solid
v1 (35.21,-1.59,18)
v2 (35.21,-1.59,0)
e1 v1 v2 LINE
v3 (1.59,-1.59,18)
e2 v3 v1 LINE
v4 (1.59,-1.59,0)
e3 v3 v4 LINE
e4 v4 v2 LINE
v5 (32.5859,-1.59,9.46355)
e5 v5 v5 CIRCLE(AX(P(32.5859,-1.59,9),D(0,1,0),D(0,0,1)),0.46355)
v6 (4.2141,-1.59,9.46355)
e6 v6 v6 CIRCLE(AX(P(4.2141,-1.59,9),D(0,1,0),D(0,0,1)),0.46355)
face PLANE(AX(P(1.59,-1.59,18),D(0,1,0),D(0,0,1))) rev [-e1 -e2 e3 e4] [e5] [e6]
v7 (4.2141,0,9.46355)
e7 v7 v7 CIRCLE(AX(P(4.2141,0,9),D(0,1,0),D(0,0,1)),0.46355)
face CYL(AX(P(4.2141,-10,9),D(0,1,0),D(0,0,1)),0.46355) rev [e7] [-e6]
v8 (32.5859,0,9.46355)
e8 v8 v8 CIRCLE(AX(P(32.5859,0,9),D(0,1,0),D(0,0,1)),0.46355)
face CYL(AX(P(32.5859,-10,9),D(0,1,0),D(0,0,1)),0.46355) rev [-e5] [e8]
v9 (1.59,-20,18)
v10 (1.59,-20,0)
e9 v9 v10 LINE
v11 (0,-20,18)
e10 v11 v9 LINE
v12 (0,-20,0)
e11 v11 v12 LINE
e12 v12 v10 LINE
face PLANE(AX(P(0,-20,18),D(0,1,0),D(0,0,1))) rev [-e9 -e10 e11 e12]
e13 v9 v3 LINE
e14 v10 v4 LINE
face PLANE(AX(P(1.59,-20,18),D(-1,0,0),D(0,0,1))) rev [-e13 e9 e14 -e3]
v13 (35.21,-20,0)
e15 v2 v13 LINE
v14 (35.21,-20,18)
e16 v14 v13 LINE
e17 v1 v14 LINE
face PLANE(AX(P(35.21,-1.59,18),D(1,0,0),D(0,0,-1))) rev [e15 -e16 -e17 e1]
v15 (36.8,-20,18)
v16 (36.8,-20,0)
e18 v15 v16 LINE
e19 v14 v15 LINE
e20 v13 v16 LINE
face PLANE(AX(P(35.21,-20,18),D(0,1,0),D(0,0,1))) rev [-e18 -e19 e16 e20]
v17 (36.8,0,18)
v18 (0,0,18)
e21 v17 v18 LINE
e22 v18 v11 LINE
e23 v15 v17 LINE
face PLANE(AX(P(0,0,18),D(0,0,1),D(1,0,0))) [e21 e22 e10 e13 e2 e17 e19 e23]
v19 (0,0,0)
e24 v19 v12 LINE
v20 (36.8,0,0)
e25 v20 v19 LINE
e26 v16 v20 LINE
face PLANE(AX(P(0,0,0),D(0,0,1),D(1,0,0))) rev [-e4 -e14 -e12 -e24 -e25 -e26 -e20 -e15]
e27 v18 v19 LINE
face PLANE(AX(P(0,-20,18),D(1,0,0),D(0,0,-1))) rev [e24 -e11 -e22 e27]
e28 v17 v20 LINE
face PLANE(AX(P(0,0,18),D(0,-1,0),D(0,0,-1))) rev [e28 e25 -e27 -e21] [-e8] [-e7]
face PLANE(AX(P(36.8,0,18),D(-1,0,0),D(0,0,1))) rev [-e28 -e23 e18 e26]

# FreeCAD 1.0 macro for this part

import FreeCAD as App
import Part
import Sketcher
Q = App.Units.Quantity


def add_polygon(sketch, points):
    """Adds a closed chain of lines whose ends are joined by coincident constraints."""
    first, n = sketch.GeometryCount, len(points)
    for a, b in zip(points, points[1:] + points[:1]):
        sketch.addGeometry(Part.LineSegment(App.Vector(*a, 0), App.Vector(*b, 0)), False)
    for i in range(n):
        sketch.addConstraint(Sketcher.Constraint("Coincident", first + i, 2, first + (i + 1) % n, 1))

doc = App.newDocument("Part")
body = doc.addObject("PartDesign::Body", "Body")

sketch1 = body.newObject("Sketcher::SketchObject", "Sketch")
sketch1.AttachmentSupport = (doc.getObject("XY_Plane"), [""])
sketch1.MapMode = "FlatFace"
add_polygon(sketch1, [(1.6, -20), (1.6, -1.6), (35.2, -1.6), (35.2, -20), (36.8, -20), (36.8, 0), (0, 0), (0, -20)])
sketch1.addConstraint(Sketcher.Constraint("Vertical", 0))
sketch1.addConstraint(Sketcher.Constraint("Horizontal", 1))
sketch1.addConstraint(Sketcher.Constraint("Vertical", 2))
sketch1.addConstraint(Sketcher.Constraint("Horizontal", 3))
sketch1.addConstraint(Sketcher.Constraint("Vertical", 4))
sketch1.addConstraint(Sketcher.Constraint("Horizontal", 5))
sketch1.addConstraint(Sketcher.Constraint("Vertical", 6))
sketch1.addConstraint(Sketcher.Constraint("Horizontal", 7))
sketch1.addConstraint(Sketcher.Constraint("Coincident", 5, 2, -1, 1))
sketch1.addConstraint(Sketcher.Constraint("Horizontal", 3, 2, 6, 2))
sketch1.addConstraint(Sketcher.Constraint("Equal", 3, 7))
sketch1.addConstraint(Sketcher.Constraint("DistanceY", 4, 1, 4, 2, Q("20 mm")))
sketch1.addConstraint(Sketcher.Constraint("DistanceX", 5, 2, 5, 1, Q("36.8 mm")))
sketch1.addConstraint(Sketcher.Constraint("DistanceX", 1, 1, 1, 2, Q("33.62 mm")))
sketch1.addConstraint(Sketcher.Constraint("DistanceY", 0, 1, 0, 2, Q("18.41 mm")))
pad1 = body.newObject("PartDesign::Pad", "Pad")
pad1.Profile = sketch1
pad1.Length = 18

sketch2 = body.newObject("Sketcher::SketchObject", "Sketch001")
sketch2.AttachmentSupport = (doc.getObject("XZ_Plane"), [""])
sketch2.MapMode = "FlatFace"
sketch2.addGeometry(Part.Circle(App.Vector(4.21, 9, 0), App.Vector(0, 0, 1), 0.46), False)
sketch2.addGeometry(Part.Circle(App.Vector(32.59, 9, 0), App.Vector(0, 0, 1), 0.46), False)
sketch2.addConstraint(Sketcher.Constraint("Equal", 0, 1))
sketch2.addConstraint(Sketcher.Constraint("Horizontal", 0, 3, 1, 3))
sketch2.addConstraint(Sketcher.Constraint("DistanceY", -1, 1, 0, 3, Q("9 mm")))
sketch2.addConstraint(Sketcher.Constraint("Diameter", 0, Q("0.9271 mm")))
sketch2.addConstraint(Sketcher.Constraint("DistanceX", -1, 1, 0, 3, Q("4.2141 mm")))
sketch2.addConstraint(Sketcher.Constraint("DistanceX", -1, 1, 1, 3, Q("32.5859 mm")))
pocket1 = body.newObject("PartDesign::Pocket", "Pocket")
pocket1.Profile = sketch2
pocket1.Length = 10
pocket1.Reversed = True

doc.recompute()
